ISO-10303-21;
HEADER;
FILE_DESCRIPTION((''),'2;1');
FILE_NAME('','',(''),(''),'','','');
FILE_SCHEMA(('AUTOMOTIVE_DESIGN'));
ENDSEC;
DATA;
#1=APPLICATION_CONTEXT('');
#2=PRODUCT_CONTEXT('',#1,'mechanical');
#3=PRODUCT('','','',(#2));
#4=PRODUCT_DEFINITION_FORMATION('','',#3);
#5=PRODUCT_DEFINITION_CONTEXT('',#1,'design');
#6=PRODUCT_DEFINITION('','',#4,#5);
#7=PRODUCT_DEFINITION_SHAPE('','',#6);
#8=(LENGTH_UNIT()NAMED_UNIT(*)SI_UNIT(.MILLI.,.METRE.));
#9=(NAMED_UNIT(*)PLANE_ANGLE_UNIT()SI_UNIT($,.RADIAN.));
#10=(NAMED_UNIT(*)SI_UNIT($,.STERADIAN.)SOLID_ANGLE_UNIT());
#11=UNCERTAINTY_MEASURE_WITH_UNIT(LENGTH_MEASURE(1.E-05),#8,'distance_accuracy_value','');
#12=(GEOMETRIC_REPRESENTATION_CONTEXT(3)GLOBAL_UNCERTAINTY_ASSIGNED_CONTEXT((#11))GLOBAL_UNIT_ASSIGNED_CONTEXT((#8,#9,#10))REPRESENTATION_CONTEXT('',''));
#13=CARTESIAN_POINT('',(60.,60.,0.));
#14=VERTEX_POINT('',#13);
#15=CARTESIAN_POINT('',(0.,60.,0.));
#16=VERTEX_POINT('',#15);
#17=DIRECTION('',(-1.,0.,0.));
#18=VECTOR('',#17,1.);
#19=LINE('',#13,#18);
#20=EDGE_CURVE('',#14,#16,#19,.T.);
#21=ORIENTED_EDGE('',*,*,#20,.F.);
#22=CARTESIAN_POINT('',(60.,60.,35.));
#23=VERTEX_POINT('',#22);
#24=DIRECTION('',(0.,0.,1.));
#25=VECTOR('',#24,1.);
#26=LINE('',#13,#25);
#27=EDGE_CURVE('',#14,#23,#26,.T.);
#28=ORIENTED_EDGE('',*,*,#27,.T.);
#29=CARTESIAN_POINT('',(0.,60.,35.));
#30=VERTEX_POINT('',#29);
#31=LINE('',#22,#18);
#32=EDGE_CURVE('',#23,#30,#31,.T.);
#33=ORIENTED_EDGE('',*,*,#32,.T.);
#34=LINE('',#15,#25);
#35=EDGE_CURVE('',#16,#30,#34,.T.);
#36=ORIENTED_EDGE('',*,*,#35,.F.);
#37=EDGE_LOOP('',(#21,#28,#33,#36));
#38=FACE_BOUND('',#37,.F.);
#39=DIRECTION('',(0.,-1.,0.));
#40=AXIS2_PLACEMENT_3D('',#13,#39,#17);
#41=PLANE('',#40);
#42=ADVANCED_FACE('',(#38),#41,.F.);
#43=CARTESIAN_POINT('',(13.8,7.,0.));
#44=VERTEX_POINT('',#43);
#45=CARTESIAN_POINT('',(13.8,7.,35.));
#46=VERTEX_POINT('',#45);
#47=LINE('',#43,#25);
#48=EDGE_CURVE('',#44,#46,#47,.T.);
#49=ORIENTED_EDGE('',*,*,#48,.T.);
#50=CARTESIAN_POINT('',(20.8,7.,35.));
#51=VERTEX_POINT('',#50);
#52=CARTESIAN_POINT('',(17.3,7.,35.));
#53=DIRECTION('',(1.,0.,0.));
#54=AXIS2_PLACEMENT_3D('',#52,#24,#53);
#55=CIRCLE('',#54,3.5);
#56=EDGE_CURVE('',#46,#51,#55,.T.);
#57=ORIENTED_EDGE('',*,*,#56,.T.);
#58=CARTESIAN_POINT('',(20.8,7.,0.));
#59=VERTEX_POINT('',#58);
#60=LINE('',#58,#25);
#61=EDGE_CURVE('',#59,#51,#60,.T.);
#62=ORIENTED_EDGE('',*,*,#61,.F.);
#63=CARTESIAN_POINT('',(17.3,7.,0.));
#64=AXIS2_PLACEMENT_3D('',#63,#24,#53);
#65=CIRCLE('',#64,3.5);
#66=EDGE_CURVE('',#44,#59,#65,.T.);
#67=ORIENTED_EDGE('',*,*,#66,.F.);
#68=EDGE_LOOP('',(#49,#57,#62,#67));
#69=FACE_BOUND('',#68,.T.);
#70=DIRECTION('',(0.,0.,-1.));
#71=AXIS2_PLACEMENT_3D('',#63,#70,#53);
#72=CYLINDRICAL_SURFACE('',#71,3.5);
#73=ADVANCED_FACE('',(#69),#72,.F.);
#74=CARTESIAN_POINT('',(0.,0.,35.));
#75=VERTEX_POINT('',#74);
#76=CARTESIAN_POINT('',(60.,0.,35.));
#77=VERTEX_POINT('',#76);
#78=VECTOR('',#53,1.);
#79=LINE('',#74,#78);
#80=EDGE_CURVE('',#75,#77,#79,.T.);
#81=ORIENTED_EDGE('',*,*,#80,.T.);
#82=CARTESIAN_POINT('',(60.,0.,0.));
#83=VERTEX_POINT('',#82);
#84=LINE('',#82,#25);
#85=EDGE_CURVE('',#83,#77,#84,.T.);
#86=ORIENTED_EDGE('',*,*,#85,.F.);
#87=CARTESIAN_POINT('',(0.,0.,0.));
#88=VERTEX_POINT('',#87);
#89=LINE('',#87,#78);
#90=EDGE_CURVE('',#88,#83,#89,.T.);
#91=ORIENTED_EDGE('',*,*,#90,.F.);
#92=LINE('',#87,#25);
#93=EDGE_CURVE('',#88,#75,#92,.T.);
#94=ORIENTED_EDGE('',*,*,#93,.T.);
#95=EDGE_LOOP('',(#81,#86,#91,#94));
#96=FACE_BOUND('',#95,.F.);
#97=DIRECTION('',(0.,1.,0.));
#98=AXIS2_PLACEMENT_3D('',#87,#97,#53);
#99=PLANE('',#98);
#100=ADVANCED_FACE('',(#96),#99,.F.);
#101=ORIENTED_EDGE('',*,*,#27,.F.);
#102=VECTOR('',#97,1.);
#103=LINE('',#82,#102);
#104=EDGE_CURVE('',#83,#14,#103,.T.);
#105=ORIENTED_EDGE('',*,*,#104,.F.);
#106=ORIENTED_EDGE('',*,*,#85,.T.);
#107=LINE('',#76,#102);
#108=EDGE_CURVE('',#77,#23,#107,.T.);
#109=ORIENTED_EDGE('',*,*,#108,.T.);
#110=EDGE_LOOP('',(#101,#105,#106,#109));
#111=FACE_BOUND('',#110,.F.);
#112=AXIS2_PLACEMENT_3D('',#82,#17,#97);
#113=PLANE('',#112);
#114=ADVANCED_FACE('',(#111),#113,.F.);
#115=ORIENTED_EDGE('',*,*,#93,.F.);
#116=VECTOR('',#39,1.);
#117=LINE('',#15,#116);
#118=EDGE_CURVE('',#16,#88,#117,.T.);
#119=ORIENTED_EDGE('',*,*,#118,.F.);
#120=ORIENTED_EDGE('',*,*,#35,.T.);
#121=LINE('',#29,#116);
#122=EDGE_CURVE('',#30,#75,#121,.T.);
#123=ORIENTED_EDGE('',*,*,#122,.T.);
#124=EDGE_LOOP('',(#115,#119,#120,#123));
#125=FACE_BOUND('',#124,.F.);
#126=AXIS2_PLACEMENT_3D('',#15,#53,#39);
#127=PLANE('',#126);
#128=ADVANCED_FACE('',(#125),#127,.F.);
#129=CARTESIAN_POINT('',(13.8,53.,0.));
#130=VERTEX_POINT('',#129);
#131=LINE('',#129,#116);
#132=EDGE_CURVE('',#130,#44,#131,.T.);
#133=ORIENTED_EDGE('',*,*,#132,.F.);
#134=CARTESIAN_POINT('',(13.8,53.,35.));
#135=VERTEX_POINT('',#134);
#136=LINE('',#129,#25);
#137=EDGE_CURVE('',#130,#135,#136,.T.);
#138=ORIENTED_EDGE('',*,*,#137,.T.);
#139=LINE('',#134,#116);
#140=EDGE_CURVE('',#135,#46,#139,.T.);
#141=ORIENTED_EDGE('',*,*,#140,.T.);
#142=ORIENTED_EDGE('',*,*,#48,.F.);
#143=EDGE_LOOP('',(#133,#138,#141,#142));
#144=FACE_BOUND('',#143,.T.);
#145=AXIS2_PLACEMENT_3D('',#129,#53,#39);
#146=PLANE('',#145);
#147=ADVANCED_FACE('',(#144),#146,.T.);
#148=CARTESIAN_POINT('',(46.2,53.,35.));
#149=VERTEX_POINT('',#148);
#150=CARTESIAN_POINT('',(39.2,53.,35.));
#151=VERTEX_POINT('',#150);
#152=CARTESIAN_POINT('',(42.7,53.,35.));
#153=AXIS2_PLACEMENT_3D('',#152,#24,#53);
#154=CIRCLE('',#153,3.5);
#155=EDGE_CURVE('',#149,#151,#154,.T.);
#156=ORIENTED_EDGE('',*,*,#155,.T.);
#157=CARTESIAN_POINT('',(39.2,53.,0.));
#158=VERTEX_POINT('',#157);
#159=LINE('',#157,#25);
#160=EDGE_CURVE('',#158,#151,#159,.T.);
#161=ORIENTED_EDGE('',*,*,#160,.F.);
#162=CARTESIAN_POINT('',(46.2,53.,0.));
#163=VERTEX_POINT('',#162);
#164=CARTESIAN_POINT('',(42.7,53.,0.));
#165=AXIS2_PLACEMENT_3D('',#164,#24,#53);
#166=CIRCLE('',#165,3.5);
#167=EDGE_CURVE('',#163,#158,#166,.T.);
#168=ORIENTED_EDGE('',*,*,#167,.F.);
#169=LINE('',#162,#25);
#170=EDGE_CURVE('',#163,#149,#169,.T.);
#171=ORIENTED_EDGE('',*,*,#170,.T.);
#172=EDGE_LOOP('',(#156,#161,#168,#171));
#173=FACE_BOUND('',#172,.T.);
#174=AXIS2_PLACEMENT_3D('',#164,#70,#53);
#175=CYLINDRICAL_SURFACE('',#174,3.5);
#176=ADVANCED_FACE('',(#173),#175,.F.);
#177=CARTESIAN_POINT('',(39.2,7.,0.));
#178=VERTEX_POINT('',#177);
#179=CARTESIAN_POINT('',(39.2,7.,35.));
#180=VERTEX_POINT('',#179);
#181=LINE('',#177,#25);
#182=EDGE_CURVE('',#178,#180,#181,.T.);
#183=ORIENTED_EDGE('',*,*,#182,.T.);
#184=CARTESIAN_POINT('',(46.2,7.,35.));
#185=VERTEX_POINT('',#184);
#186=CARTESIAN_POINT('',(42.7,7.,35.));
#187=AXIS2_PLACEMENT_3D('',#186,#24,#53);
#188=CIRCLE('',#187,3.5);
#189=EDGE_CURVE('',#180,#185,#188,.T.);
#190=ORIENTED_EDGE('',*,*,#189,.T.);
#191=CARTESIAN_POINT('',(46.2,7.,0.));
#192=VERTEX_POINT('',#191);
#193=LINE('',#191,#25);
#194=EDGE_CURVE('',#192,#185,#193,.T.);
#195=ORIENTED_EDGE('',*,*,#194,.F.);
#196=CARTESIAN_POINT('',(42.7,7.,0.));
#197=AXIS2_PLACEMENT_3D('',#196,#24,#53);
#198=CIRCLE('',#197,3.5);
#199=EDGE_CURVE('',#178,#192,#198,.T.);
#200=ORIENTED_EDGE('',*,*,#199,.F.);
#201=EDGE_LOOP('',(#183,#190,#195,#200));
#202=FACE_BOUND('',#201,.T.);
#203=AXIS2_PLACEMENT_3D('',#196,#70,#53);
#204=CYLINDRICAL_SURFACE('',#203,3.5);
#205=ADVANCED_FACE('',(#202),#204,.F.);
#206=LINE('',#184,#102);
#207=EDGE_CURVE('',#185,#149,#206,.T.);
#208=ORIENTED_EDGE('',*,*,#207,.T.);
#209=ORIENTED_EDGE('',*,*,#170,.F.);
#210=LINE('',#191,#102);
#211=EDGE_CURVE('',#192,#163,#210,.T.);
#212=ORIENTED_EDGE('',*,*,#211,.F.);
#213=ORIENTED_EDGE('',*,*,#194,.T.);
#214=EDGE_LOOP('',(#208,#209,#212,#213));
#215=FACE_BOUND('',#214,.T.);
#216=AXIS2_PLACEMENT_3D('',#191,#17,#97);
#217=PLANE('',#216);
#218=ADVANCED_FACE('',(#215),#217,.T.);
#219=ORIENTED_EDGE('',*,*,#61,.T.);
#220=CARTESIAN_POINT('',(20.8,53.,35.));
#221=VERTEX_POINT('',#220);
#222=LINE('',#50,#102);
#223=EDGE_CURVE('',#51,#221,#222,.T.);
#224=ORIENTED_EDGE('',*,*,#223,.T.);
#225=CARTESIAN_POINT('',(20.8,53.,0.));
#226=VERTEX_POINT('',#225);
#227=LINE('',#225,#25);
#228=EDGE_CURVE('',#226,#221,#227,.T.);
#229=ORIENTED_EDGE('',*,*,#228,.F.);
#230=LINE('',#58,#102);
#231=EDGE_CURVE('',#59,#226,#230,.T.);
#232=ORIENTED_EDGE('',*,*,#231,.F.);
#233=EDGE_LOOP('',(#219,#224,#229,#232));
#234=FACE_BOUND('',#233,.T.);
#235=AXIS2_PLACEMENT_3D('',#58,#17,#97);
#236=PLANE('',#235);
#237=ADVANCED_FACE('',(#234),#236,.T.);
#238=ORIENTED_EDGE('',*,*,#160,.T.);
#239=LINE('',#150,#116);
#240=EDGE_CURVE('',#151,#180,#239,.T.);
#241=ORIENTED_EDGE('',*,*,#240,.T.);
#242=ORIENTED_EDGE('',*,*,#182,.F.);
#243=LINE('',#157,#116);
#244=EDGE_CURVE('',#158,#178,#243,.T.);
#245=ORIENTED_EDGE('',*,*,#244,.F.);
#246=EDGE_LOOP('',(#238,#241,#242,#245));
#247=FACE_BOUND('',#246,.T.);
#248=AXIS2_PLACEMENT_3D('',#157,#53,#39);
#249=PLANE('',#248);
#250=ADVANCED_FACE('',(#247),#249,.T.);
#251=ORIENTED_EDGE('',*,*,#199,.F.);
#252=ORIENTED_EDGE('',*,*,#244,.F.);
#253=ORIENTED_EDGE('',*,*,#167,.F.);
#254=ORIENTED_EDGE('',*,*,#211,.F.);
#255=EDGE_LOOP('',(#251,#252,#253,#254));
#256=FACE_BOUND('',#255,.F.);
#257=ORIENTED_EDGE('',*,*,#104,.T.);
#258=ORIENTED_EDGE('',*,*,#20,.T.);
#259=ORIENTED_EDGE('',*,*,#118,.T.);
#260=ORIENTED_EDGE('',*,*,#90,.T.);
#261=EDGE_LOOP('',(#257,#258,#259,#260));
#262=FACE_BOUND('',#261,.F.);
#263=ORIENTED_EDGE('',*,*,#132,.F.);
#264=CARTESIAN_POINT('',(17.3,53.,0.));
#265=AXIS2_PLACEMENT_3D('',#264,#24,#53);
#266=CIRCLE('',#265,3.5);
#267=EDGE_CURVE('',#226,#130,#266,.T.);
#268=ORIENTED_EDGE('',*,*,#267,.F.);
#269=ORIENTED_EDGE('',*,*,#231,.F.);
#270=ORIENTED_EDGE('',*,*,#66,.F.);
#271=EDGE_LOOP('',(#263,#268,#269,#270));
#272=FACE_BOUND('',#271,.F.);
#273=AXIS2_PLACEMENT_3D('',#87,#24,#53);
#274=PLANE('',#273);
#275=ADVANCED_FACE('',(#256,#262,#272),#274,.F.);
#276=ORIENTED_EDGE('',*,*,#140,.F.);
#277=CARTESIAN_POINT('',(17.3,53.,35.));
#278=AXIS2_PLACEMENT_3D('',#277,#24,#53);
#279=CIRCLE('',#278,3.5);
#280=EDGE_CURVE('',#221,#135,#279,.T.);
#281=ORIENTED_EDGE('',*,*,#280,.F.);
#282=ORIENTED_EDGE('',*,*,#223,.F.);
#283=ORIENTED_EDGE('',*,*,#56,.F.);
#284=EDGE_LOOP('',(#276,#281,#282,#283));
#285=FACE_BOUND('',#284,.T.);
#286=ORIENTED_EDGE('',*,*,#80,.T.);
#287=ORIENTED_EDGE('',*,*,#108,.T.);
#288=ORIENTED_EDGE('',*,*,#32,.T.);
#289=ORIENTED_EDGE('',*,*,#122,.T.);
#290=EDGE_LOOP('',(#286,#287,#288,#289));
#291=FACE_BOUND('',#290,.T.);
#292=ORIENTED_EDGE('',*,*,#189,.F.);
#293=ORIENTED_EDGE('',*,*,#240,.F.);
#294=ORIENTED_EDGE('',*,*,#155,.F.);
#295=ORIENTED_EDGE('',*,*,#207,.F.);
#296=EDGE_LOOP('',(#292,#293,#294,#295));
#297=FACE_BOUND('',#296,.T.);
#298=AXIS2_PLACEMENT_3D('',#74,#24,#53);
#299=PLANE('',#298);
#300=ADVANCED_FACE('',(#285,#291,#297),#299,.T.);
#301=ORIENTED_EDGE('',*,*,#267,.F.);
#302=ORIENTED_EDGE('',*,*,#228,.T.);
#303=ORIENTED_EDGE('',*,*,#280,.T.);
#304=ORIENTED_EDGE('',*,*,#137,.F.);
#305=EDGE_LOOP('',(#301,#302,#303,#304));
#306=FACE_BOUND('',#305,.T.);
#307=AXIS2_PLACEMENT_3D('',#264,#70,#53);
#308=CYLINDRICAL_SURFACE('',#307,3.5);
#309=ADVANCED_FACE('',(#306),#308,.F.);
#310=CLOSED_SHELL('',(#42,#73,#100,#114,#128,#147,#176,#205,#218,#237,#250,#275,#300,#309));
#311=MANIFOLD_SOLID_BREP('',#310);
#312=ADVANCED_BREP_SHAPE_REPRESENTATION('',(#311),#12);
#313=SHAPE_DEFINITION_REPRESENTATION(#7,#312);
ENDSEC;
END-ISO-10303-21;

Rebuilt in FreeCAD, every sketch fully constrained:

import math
import FreeCAD as App
import Part
import Sketcher
from FreeCAD import Vector
Q = App.Units.Quantity

doc = App.newDocument("Part")
body = doc.addObject("PartDesign::Body", "Body")

# Sketch on XY plane
sketch1 = body.newObject("Sketcher::SketchObject", "Sketch")
sketch1.AttachmentSupport = (doc.getObject("XY_Plane"), [""])
sketch1.MapMode = "FlatFace"
sketch1.addGeometry(Part.LineSegment(Vector(0, 60, 0), Vector(0, 0, 0)), False)
sketch1.addGeometry(Part.LineSegment(Vector(0, 0, 0), Vector(60, 0, 0)), False)
sketch1.addGeometry(Part.LineSegment(Vector(60, 0, 0), Vector(60, 60, 0)), False)
sketch1.addGeometry(Part.LineSegment(Vector(60, 60, 0), Vector(0, 60, 0)), False)
sketch1.addGeometry(Part.ArcOfCircle(Part.Circle(Vector(17.3, 53, 0), Vector(0, 0, 1), 3.5), math.radians(0), math.radians(180)), False)
sketch1.addGeometry(Part.LineSegment(Vector(20.8, 53, 0), Vector(20.8, 7, 0)), False)
sketch1.addGeometry(Part.ArcOfCircle(Part.Circle(Vector(17.3, 7, 0), Vector(0, 0, 1), 3.5), math.radians(180), math.radians(360)), False)
sketch1.addGeometry(Part.LineSegment(Vector(13.8, 7, 0), Vector(13.8, 53, 0)), False)
sketch1.addGeometry(Part.LineSegment(Vector(46.2, 53, 0), Vector(46.2, 7, 0)), False)
sketch1.addGeometry(Part.ArcOfCircle(Part.Circle(Vector(42.7, 7, 0), Vector(0, 0, 1), 3.5), math.radians(180), math.radians(360)), False)
sketch1.addGeometry(Part.LineSegment(Vector(39.2, 7, 0), Vector(39.2, 53, 0)), False)
sketch1.addGeometry(Part.ArcOfCircle(Part.Circle(Vector(42.7, 53, 0), Vector(0, 0, 1), 3.5), math.radians(0), math.radians(180)), False)
sketch1.addConstraint(Sketcher.Constraint("Coincident", 0, 2, 1, 1))
sketch1.addConstraint(Sketcher.Constraint("Coincident", 1, 2, 2, 1))
sketch1.addConstraint(Sketcher.Constraint("Coincident", 2, 2, 3, 1))
sketch1.addConstraint(Sketcher.Constraint("Coincident", 3, 2, 0, 1))
sketch1.addConstraint(Sketcher.Constraint("Tangent", 4, 1, 5, 1))
sketch1.addConstraint(Sketcher.Constraint("Tangent", 5, 2, 6, 2))
sketch1.addConstraint(Sketcher.Constraint("Tangent", 6, 1, 7, 1))
sketch1.addConstraint(Sketcher.Constraint("Tangent", 7, 2, 4, 2))
sketch1.addConstraint(Sketcher.Constraint("Tangent", 8, 2, 9, 2))
sketch1.addConstraint(Sketcher.Constraint("Tangent", 9, 1, 10, 1))
sketch1.addConstraint(Sketcher.Constraint("Tangent", 10, 2, 11, 2))
sketch1.addConstraint(Sketcher.Constraint("Tangent", 11, 1, 8, 1))
sketch1.addConstraint(Sketcher.Constraint("Vertical", 0))
sketch1.addConstraint(Sketcher.Constraint("Horizontal", 1))
sketch1.addConstraint(Sketcher.Constraint("Vertical", 2))
sketch1.addConstraint(Sketcher.Constraint("Horizontal", 3))
sketch1.addConstraint(Sketcher.Constraint("Vertical", 5))
sketch1.addConstraint(Sketcher.Constraint("Vertical", 7))
sketch1.addConstraint(Sketcher.Constraint("Vertical", 8))
sketch1.addConstraint(Sketcher.Constraint("Vertical", 10))
sketch1.addConstraint(Sketcher.Constraint("Coincident", 0, 2, -1, 1))
sketch1.addConstraint(Sketcher.Constraint("Equal", 6, 9))
sketch1.addConstraint(Sketcher.Constraint("Horizontal", 6, 3, 9, 3))
sketch1.addConstraint(Sketcher.Constraint("Horizontal", 4, 3, 11, 3))
sketch1.addConstraint(Sketcher.Constraint("Equal", 3, 0))
sketch1.addConstraint(Sketcher.Constraint("Radius", 4, Q("3.5 mm")))
sketch1.addConstraint(Sketcher.Constraint("DistanceX", 1, 1, 1, 2, Q("60 mm")))
sketch1.addConstraint(Sketcher.Constraint("DistanceY", -1, 1, 6, 3, Q("7 mm")))
sketch1.addConstraint(Sketcher.Constraint("DistanceY", 11, 3, 2, 2, Q("7 mm")))
sketch1.addConstraint(Sketcher.Constraint("DistanceX", -1, 1, 4, 3, Q("17.3 mm")))
sketch1.addConstraint(Sketcher.Constraint("DistanceX", -1, 1, 9, 3, Q("42.7 mm")))
pad1 = body.newObject("PartDesign::Pad", "Pad")
pad1.Profile = sketch1
pad1.Length = 35

doc.recompute()
